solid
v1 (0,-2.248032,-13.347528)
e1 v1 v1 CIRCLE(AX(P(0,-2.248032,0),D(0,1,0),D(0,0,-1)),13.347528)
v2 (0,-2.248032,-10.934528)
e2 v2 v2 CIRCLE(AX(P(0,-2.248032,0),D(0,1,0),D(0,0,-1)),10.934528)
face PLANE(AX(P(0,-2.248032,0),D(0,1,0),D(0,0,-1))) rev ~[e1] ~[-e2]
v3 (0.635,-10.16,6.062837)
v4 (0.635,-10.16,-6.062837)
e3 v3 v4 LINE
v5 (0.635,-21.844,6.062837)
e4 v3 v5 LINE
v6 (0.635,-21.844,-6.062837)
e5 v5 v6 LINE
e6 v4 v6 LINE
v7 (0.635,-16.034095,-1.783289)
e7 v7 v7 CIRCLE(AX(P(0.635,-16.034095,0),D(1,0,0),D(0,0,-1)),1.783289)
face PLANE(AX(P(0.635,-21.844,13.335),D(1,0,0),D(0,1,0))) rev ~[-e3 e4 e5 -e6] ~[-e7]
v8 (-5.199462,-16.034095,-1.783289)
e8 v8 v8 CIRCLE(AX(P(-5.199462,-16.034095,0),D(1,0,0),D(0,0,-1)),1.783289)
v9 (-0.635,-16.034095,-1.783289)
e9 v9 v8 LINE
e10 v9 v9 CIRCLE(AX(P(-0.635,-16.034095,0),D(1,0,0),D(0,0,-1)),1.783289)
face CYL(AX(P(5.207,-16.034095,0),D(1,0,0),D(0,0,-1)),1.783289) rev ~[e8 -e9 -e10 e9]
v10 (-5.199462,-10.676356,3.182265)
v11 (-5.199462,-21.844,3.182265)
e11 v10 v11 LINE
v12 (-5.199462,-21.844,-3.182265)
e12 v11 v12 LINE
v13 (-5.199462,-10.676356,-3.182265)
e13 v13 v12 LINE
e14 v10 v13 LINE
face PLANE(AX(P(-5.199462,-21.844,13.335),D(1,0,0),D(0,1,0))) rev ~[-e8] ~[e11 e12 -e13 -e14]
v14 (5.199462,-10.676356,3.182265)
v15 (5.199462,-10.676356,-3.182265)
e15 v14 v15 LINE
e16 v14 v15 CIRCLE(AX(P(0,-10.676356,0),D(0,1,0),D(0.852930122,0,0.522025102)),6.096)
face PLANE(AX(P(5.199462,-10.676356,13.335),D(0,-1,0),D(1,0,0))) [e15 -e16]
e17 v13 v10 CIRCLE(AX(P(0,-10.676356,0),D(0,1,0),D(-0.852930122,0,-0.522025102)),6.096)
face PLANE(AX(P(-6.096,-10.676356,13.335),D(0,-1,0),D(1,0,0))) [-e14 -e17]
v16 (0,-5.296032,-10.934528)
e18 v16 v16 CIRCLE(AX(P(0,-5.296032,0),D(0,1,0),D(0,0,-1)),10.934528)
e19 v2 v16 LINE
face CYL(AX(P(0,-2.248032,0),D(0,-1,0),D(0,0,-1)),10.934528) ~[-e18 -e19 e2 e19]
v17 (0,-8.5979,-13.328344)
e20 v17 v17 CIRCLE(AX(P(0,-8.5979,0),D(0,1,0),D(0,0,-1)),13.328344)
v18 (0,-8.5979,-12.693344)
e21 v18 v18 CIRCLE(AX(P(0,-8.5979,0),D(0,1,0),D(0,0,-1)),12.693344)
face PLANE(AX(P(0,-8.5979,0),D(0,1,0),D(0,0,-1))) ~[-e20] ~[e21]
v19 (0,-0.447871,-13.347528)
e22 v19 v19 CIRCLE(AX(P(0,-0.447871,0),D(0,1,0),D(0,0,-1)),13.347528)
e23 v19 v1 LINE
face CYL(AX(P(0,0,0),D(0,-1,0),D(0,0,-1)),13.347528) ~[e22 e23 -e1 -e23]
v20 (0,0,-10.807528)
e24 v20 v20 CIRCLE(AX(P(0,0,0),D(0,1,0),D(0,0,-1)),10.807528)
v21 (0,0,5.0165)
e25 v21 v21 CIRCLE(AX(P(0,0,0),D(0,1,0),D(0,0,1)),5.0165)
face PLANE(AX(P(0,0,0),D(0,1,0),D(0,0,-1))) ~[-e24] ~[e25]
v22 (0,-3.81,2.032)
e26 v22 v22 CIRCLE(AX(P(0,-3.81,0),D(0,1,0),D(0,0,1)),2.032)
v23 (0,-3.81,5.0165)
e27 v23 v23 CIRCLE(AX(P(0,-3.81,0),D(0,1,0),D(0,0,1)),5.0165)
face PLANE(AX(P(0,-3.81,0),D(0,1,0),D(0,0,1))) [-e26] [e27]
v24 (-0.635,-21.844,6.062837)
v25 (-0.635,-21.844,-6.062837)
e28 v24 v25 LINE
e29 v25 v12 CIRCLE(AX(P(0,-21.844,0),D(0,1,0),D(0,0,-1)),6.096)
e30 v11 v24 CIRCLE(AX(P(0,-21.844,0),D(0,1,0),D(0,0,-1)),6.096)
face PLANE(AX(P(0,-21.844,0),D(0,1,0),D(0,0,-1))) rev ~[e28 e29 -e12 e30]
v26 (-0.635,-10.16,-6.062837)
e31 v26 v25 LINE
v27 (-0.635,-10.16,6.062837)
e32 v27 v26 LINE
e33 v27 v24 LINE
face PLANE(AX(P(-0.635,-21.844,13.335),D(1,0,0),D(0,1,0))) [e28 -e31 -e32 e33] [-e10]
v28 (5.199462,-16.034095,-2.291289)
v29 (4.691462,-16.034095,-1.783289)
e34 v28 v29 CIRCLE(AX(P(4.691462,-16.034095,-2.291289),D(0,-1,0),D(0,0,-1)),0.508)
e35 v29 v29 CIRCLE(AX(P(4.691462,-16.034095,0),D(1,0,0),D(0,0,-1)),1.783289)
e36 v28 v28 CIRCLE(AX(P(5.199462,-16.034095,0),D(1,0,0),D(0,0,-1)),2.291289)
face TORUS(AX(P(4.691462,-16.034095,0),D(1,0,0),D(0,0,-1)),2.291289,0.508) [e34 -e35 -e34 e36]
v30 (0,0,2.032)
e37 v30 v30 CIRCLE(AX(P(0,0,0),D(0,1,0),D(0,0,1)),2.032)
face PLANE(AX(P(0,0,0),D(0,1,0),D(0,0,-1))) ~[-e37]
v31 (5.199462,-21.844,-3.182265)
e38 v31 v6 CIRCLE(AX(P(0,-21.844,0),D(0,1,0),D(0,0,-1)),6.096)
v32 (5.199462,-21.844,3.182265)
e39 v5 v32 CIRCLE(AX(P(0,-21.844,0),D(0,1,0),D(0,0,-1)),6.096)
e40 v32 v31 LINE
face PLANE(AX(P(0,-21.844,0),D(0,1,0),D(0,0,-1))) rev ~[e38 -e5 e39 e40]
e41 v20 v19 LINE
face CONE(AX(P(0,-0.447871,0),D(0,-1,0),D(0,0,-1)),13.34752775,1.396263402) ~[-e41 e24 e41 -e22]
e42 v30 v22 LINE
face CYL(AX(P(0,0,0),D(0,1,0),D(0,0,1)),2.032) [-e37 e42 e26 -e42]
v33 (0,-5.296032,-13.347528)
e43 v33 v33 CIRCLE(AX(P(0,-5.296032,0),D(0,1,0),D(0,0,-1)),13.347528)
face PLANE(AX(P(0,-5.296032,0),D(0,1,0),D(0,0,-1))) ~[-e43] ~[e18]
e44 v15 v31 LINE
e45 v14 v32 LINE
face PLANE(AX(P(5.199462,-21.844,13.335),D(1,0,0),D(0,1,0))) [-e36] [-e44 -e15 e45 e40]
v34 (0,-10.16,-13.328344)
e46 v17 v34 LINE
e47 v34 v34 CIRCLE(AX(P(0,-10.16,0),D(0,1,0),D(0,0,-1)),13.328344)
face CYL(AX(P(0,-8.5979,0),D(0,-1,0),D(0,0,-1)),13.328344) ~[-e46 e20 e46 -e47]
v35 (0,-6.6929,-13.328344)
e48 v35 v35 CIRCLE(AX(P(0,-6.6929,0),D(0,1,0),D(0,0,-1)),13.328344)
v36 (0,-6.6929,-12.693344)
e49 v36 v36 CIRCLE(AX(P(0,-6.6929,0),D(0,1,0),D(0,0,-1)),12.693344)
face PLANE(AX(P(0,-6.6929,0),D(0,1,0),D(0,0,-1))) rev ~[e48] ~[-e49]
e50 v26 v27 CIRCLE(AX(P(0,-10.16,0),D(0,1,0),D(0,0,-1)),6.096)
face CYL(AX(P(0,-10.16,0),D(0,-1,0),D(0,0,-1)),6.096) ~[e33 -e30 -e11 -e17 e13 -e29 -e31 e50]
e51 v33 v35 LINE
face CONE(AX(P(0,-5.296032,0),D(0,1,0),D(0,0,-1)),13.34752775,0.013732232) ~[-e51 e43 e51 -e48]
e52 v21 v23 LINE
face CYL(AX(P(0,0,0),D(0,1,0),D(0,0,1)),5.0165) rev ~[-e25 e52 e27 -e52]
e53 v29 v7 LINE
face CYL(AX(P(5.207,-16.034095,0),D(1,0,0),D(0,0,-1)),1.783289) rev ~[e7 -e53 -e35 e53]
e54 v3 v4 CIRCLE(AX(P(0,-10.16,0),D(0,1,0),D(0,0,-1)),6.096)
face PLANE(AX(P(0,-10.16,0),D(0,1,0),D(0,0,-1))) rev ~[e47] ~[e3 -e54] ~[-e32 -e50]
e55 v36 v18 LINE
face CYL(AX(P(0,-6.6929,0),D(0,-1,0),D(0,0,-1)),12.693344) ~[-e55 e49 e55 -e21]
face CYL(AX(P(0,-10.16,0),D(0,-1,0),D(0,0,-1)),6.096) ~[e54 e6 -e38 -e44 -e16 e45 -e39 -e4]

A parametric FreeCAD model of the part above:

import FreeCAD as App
import Part
import Sketcher

V = App.Vector
Q = App.Units.Quantity


def edges_at(feature, points):
    """Names of the edges that pass closest to the given points."""
    edges = feature.Shape.Edges
    near = lambda p: min(range(len(edges)), key=lambda i: edges[i].distToShape(Part.Vertex(*p))[0])
    return sorted({f"Edge{near(p) + 1}" for p in points})


def add_polygon(sketch, points):
    """Adds a closed chain of lines whose ends are joined by coincident constraints."""
    first, n = sketch.GeometryCount, len(points)
    for a, b in zip(points, points[1:] + points[:1]):
        sketch.addGeometry(Part.LineSegment(App.Vector(*a, 0), App.Vector(*b, 0)), False)
    for i in range(n):
        sketch.addConstraint(Sketcher.Constraint("Coincident", first + i, 2, first + (i + 1) % n, 1))

doc = App.newDocument("Part")
body = doc.addObject("PartDesign::Body", "Body")

# Sketch on XY plane
sketch1 = doc.addObject("Sketcher::SketchObject", "Sketch")
body.addObject(sketch1)
sketch1.AttachmentSupport = (doc.XY_Plane, [""])
sketch1.MapMode = "FlatFace"
add_polygon(sketch1, [(13.347528, 0), (0, 0), (0, -21.844), (6.096, -21.844), (6.096, -10.16), (13.328344, -10.16), (13.328344, -8.5979), (12.693344, -8.5979), (12.693344, -6.6929), (13.328344, -6.6929), (13.347528, -5.296032), (10.934528, -5.296032), (10.934528, -2.248032), (13.347528, -2.248032)])  # lines 0-13
sketch1.addConstraint(Sketcher.Constraint("Horizontal", 0))
sketch1.addConstraint(Sketcher.Constraint("Vertical", 1))
sketch1.addConstraint(Sketcher.Constraint("Horizontal", 2))
sketch1.addConstraint(Sketcher.Constraint("Vertical", 3))
sketch1.addConstraint(Sketcher.Constraint("Horizontal", 4))
sketch1.addConstraint(Sketcher.Constraint("Vertical", 5))
sketch1.addConstraint(Sketcher.Constraint("Horizontal", 6))
sketch1.addConstraint(Sketcher.Constraint("Vertical", 7))
sketch1.addConstraint(Sketcher.Constraint("Horizontal", 8))
sketch1.addConstraint(Sketcher.Constraint("Horizontal", 10))
sketch1.addConstraint(Sketcher.Constraint("Vertical", 11))
sketch1.addConstraint(Sketcher.Constraint("Horizontal", 12))
sketch1.addConstraint(Sketcher.Constraint("Vertical", 13))
sketch1.addConstraint(Sketcher.Constraint("Coincident", 0, 2, -1, 1))
sketch1.addConstraint(Sketcher.Constraint("Vertical", 5, 2, 8, 2))
sketch1.addConstraint(Sketcher.Constraint("Vertical", 9, 2, 12, 2))
sketch1.addConstraint(Sketcher.Constraint("DistanceX", 2, 1, 2, 2, Q("0.24 in")))
sketch1.addConstraint(Sketcher.Constraint("DistanceY", 1, 2, 1, 1, Q("0.86 in")))
sketch1.addConstraint(Sketcher.Constraint("DistanceY", 3, 1, 3, 2, Q("0.46 in")))
sketch1.addConstraint(Sketcher.Constraint("DistanceY", 11, 1, 11, 2, Q("0.12 in")))
sketch1.addConstraint(Sketcher.Constraint("DistanceX", 6, 2, 6, 1, Q("0.025 in")))
sketch1.addConstraint(Sketcher.Constraint("DistanceX", 10, 2, 10, 1, Q("0.095 in")))
sketch1.addConstraint(Sketcher.Constraint("DistanceY", 7, 1, 7, 2, Q("0.075 in")))
sketch1.addConstraint(Sketcher.Constraint("Distance", 9, Q("0.055 in")))
sketch1.addConstraint(Sketcher.Constraint("DistanceY", 5, 1, 5, 2, Q("0.0615 in")))
sketch1.addConstraint(Sketcher.Constraint("DistanceY", 13, 1, 13, 2, Q("2.248032 mm")))
sketch1.addConstraint(Sketcher.Constraint("DistanceX", 0, 2, 0, 1, Q("13.347528 mm")))
revolution = doc.addObject("PartDesign::Revolution", "Revolution")
body.addObject(revolution)
revolution.Profile = sketch1
revolution.ReferenceAxis = (sketch1, ["V_Axis"])
revolution.Angle = 360
doc.recompute()

chamfer = doc.addObject("PartDesign::Chamfer", "Chamfer")
body.addObject(chamfer)
chamfer.Base = (revolution, edges_at(revolution, [(0, 0, 13.348)]))
chamfer.ChamferType = "Two distances"
chamfer.Size = Q("0.1 in")
chamfer.Size2 = 0.447871

# Sketch on XY plane
sketch2 = doc.addObject("Sketcher::SketchObject", "Sketch001")
body.addObject(sketch2)
sketch2.AttachmentSupport = (doc.XY_Plane, [""])
sketch2.MapMode = "FlatFace"
sketch2.AttachmentOffset = App.Placement(V(0, 0, 0.525 * 25.4), App.Rotation())
add_polygon(sketch2, [(-0.6, -10.2), (-0.6, -21.8), (0.6, -21.8), (0.6, -10.2)])  # lines 0-3
add_polygon(sketch2, [(5.2, -10.7), (5.2, -21.8), (6.1, -21.8), (6.1, -10.7)])  # lines 4-7
add_polygon(sketch2, [(-6.1, -10.7), (-6.1, -21.8), (-5.2, -21.8), (-5.2, -10.7)])  # lines 8-11
sketch2.addConstraint(Sketcher.Constraint("Vertical", 0))
sketch2.addConstraint(Sketcher.Constraint("Horizontal", 1))
sketch2.addConstraint(Sketcher.Constraint("Vertical", 2))
sketch2.addConstraint(Sketcher.Constraint("Horizontal", 3))
sketch2.addConstraint(Sketcher.Constraint("Vertical", 4))
sketch2.addConstraint(Sketcher.Constraint("Horizontal", 5))
sketch2.addConstraint(Sketcher.Constraint("Vertical", 6))
sketch2.addConstraint(Sketcher.Constraint("Horizontal", 7))
sketch2.addConstraint(Sketcher.Constraint("Vertical", 8))
sketch2.addConstraint(Sketcher.Constraint("Horizontal", 9))
sketch2.addConstraint(Sketcher.Constraint("Vertical", 10))
sketch2.addConstraint(Sketcher.Constraint("Horizontal", 11))
sketch2.addConstraint(Sketcher.Constraint("Symmetric", 5, 2, 8, 2, -2))
sketch2.addConstraint(Sketcher.Constraint("Symmetric", 7, 2, 10, 2, -2))
sketch2.addConstraint(Sketcher.Constraint("Horizontal", 1, 2, 4, 2))
sketch2.addConstraint(Sketcher.Constraint("DistanceX", 1, 1, 1, 2, Q("0.05 in")))
sketch2.addConstraint(Sketcher.Constraint("DistanceY", 0, 2, 0, 1, Q("0.46 in")))
sketch2.addConstraint(Sketcher.Constraint("DistanceY", 2, 2, -1, 1, Q("0.4 in")))
sketch2.addConstraint(Sketcher.Constraint("DistanceX", -1, 1, 5, 2, Q("0.24 in")))
sketch2.addConstraint(Sketcher.Constraint("DistanceX", 0, 2, -1, 1, Q("0.025 in")))
sketch2.addConstraint(Sketcher.Constraint("DistanceX", 5, 1, 5, 2, Q("0.896538 mm")))
sketch2.addConstraint(Sketcher.Constraint("DistanceY", 4, 2, 4, 1, Q("11.167644 mm")))
pocket1 = doc.addObject("PartDesign::Pocket", "Pocket")
body.addObject(pocket1)
pocket1.Profile = sketch2
pocket1.Length = Q("1 in")

# Sketch on YZ plane
sketch3 = doc.addObject("Sketcher::SketchObject", "Sketch002")
body.addObject(sketch3)
sketch3.AttachmentSupport = (doc.YZ_Plane, [""])
sketch3.MapMode = "FlatFace"
sketch3.AttachmentOffset = App.Placement(V(0, 0, 0.205 * 25.4), App.Rotation())
sketch3.addGeometry(Part.Circle(V(-16, 0, 0), V(0, 0, 1), 1.8), False)
sketch3.addConstraint(Sketcher.Constraint("PointOnObject", 0, 3, -1))
sketch3.addConstraint(Sketcher.Constraint("Diameter", 0, Q("3.566577 mm")))
sketch3.addConstraint(Sketcher.Constraint("DistanceX", 0, 3, -1, 1, Q("16.034095 mm")))
pocket2 = doc.addObject("PartDesign::Pocket", "Pocket001")
body.addObject(pocket2)
pocket2.Profile = sketch3
pocket2.Type = "ThroughAll"
doc.recompute()

fillet = doc.addObject("PartDesign::Fillet", "Fillet")
body.addObject(fillet)
fillet.Base = (pocket2, edges_at(pocket2, [(5.199, -16.034, 1.783)]))
fillet.Radius = Q("0.02 in")

# Sketch on XZ plane
sketch4 = doc.addObject("Sketcher::SketchObject", "Sketch003")
body.addObject(sketch4)
sketch4.AttachmentSupport = (doc.XZ_Plane, [""])
sketch4.MapMode = "FlatFace"
sketch4.addGeometry(Part.Circle(V(0, 0, 0), V(0, 0, 1), 5), False)
sketch4.addGeometry(Part.Circle(V(0, 0, 0), V(0, 0, 1), 2), False)
sketch4.addConstraint(Sketcher.Constraint("Coincident", 0, 3, -1, 1))
sketch4.addConstraint(Sketcher.Constraint("Coincident", 1, 3, -1, 1))
sketch4.addConstraint(Sketcher.Constraint("Diameter", 1, Q("0.16 in")))
sketch4.addConstraint(Sketcher.Constraint("Diameter", 0, Q("0.395 in")))
pocket3 = doc.addObject("PartDesign::Pocket", "Pocket002")
body.addObject(pocket3)
pocket3.Profile = sketch4
pocket3.Length = Q("0.15 in")
pocket3.Reversed = True

doc.recompute()
